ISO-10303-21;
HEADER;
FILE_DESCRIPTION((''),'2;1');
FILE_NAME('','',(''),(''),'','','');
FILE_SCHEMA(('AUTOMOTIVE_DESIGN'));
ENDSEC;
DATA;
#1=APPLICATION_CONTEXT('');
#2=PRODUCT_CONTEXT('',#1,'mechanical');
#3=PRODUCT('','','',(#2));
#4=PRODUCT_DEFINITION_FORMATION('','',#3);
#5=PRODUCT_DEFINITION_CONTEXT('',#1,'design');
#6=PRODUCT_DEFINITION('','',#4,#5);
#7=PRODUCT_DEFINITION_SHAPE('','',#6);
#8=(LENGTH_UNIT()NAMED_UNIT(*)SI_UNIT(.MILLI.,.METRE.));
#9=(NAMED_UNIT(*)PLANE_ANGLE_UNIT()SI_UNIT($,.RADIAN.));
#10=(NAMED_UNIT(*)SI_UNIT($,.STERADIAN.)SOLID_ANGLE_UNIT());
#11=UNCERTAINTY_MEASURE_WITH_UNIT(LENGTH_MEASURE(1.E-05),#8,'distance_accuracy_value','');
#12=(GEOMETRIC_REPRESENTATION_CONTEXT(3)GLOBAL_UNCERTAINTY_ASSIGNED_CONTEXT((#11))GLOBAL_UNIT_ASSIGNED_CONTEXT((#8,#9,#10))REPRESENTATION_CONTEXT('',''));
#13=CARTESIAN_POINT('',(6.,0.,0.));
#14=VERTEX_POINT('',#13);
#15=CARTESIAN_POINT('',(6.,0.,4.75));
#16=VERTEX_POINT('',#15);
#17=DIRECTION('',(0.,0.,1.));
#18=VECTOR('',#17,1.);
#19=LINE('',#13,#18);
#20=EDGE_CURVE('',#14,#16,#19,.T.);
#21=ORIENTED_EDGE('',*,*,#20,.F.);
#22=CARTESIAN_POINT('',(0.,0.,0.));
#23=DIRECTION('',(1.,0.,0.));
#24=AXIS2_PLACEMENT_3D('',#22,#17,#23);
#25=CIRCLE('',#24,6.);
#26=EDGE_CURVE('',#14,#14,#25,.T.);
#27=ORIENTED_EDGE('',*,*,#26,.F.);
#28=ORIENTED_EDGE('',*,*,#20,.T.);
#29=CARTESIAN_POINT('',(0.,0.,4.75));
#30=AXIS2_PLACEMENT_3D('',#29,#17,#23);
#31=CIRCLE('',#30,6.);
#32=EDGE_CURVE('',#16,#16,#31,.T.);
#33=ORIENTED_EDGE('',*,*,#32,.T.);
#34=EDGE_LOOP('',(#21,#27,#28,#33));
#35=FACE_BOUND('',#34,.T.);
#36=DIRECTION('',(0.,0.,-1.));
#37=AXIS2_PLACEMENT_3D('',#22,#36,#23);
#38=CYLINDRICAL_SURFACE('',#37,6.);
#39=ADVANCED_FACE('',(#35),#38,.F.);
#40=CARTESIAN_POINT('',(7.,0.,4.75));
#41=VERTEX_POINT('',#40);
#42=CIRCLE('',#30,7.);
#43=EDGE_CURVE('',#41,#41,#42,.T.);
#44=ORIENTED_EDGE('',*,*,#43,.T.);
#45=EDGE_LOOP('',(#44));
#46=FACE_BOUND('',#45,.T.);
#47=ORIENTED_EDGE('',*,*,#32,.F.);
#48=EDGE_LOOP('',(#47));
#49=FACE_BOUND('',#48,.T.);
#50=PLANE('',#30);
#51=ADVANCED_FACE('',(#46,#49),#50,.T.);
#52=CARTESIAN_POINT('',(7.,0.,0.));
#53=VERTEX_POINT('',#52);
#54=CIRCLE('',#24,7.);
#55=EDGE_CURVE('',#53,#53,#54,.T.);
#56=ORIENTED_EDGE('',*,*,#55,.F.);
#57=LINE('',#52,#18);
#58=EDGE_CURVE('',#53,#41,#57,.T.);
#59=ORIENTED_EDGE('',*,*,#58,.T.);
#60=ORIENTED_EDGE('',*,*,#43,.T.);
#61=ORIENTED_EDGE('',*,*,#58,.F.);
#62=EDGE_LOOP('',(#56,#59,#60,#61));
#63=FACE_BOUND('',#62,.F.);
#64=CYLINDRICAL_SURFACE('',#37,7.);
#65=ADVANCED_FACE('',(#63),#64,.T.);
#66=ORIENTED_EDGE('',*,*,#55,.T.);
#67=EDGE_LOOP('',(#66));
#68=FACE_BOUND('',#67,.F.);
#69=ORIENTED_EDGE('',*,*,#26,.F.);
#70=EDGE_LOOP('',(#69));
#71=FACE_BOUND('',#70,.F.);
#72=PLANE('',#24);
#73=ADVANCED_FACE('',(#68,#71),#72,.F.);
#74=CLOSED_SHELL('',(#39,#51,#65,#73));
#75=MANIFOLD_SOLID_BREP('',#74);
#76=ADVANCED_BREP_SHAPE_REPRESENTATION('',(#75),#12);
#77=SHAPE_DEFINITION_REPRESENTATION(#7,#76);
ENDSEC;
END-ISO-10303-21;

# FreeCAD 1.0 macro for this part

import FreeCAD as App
import Part
import Sketcher

V = App.Vector

doc = App.newDocument("Part")
body = doc.addObject("PartDesign::Body", "Body")

# Sketch on XY plane
sketch1 = body.newObject("Sketcher::SketchObject", "Sketch")
sketch1.AttachmentSupport = (doc.getObject("XY_Plane"), [""])
sketch1.MapMode = "FlatFace"
sketch1.addGeometry(Part.Circle(V(0, 0, 0), V(0, 0, 1), 7), False)
sketch1.addGeometry(Part.Circle(V(0, 0, 0), V(0, 0, 1), 6), False)
sketch1.addConstraint(Sketcher.Constraint("Coincident", 0, 3, -1, 1))
sketch1.addConstraint(Sketcher.Constraint("Coincident", 1, 3, -1, 1))
sketch1.addConstraint(Sketcher.Constraint("Diameter", 0, 14.0))
sketch1.addConstraint(Sketcher.Constraint("Diameter", 1, 12.0))
pad1 = body.newObject("PartDesign::Pad", "Pad")
pad1.Profile = sketch1
pad1.Length = 4.75

doc.recompute()
